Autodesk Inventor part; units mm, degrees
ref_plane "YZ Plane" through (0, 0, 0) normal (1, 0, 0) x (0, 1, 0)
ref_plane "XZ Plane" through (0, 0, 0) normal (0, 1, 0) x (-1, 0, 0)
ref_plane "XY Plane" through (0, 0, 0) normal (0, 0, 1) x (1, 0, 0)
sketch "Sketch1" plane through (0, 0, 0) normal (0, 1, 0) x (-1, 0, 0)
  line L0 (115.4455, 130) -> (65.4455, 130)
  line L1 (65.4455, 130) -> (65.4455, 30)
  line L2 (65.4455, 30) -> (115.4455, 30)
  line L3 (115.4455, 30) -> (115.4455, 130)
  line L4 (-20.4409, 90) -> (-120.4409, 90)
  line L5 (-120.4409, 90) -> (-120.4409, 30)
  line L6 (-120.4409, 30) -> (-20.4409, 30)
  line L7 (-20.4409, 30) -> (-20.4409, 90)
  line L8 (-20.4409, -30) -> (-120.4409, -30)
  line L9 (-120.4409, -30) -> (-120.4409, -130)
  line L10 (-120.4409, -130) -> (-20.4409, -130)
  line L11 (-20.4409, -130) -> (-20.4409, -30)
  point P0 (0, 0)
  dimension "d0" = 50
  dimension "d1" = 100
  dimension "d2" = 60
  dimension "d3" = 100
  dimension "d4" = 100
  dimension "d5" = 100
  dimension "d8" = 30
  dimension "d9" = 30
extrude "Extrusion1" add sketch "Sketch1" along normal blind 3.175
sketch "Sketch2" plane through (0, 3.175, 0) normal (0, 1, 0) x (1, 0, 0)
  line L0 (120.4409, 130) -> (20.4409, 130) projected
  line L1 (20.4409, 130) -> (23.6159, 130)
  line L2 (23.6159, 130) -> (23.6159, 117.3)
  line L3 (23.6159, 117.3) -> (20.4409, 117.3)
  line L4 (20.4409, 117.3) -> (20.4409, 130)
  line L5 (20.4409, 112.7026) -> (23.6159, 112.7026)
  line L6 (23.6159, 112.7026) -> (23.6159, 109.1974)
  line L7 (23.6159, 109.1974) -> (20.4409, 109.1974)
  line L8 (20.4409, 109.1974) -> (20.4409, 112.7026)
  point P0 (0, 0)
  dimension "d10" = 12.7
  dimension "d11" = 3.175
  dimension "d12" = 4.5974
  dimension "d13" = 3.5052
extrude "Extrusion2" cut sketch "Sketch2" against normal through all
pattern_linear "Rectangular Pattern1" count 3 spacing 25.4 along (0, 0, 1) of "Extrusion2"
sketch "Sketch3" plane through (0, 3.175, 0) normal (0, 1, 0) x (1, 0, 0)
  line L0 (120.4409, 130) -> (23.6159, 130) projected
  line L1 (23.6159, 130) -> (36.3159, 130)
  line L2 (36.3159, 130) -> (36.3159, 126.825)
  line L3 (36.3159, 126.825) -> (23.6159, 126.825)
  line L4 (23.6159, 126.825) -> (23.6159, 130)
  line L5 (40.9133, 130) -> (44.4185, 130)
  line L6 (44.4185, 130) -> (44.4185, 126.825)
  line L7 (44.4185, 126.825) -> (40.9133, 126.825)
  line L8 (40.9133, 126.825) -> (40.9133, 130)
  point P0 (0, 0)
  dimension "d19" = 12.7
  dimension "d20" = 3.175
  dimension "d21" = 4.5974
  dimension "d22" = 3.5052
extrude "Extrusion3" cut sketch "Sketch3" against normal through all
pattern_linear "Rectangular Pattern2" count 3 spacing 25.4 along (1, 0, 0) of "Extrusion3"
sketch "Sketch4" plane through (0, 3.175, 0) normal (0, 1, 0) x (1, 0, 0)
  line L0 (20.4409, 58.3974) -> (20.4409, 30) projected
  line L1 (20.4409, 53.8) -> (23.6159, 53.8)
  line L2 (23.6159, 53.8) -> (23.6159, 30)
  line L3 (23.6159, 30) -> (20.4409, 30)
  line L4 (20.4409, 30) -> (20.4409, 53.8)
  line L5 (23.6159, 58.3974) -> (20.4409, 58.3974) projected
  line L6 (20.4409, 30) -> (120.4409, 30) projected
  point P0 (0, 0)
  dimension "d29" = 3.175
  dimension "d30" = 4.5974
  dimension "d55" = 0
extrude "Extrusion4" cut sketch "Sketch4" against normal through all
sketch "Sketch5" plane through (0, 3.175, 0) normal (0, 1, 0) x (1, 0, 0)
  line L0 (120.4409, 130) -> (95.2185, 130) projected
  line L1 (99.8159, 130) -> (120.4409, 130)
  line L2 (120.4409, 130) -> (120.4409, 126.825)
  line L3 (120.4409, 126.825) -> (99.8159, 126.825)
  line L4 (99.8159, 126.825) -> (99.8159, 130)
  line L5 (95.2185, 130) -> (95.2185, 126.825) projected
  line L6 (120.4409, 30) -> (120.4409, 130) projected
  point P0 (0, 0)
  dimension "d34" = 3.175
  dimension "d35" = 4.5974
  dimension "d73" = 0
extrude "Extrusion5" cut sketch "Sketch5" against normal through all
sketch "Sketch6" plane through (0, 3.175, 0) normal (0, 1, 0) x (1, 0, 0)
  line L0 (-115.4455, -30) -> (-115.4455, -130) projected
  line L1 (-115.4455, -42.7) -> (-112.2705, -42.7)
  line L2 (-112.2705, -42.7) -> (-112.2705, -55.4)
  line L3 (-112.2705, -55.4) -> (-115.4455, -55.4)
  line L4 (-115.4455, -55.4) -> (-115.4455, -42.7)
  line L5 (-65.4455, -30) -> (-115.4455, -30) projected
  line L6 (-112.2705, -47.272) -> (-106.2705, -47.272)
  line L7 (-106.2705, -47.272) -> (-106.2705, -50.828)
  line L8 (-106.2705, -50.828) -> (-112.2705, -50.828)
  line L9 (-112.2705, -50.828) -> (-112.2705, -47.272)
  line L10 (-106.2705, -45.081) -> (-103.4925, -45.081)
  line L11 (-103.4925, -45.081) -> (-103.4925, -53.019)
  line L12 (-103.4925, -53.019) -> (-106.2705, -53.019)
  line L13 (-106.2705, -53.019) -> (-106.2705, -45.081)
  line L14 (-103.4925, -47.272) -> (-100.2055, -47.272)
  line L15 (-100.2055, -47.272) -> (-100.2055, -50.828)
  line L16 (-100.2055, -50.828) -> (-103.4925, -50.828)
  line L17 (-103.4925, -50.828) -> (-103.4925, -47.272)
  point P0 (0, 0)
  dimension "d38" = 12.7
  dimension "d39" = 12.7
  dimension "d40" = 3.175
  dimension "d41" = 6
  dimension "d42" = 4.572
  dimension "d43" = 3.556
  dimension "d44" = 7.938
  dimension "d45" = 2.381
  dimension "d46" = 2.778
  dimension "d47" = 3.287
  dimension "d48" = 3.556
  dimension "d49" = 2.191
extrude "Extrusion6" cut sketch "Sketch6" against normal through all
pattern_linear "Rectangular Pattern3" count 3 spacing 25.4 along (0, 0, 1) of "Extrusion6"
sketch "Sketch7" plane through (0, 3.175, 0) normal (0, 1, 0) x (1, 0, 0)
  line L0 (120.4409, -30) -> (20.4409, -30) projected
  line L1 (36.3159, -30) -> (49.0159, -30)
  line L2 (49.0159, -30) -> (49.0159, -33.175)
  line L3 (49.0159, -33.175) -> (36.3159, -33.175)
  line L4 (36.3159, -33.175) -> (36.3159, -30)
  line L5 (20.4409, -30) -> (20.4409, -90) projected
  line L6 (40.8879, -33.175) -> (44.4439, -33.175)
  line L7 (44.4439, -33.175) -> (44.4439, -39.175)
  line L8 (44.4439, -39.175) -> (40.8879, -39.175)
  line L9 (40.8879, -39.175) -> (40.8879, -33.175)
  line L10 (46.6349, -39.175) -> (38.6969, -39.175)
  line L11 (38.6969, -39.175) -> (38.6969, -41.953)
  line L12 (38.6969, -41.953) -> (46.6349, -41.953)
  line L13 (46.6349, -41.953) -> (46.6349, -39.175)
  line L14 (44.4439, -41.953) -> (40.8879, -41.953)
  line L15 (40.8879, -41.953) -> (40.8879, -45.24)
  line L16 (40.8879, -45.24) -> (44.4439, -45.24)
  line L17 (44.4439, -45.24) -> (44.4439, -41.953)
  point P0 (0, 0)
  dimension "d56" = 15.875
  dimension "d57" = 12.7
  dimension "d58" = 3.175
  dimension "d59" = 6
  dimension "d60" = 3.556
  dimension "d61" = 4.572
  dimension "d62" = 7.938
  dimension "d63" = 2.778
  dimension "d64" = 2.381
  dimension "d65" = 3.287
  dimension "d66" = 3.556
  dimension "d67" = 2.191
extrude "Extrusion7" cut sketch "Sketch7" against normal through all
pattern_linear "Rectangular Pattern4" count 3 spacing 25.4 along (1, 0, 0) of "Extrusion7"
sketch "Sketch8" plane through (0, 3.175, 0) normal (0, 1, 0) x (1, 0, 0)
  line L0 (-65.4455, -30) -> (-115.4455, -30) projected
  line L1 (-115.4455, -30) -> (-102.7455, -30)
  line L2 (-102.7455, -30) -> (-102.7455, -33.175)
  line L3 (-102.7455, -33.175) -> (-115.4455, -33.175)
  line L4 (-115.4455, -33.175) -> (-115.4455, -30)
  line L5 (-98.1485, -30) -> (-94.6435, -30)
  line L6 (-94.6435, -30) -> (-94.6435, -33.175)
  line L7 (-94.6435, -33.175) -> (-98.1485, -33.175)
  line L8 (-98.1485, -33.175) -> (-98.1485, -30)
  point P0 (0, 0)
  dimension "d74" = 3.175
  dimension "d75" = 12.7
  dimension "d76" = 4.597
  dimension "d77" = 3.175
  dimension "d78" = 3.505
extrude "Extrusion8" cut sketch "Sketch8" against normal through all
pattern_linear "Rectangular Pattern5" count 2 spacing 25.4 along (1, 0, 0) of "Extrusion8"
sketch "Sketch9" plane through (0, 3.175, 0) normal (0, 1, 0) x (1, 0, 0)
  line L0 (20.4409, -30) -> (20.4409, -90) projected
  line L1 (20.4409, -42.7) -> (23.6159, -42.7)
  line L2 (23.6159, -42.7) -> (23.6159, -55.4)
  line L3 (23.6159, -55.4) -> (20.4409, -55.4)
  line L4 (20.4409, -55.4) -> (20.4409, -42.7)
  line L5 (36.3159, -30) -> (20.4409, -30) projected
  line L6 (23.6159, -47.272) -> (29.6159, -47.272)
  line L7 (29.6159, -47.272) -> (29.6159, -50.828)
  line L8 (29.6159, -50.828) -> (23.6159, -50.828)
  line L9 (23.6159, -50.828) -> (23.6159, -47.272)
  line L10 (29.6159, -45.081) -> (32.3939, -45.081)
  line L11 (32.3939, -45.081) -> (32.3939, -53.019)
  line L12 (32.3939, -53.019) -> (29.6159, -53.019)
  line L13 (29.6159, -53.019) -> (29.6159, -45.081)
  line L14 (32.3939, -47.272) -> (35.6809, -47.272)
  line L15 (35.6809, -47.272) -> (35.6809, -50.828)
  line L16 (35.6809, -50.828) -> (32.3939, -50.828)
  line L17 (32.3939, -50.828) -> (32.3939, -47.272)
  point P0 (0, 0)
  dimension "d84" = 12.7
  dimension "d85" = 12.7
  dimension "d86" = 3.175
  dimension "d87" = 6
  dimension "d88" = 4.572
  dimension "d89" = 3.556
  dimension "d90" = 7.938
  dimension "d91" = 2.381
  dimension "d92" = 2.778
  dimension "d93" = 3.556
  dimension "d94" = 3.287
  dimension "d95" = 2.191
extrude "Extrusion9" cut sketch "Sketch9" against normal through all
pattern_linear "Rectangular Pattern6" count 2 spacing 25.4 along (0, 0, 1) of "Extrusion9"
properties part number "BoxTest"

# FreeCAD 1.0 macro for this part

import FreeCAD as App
import Part
import Sketcher

V = App.Vector
Q = App.Units.Quantity

doc = App.newDocument("Part")
body = doc.addObject("PartDesign::Body", "Body")
body.AllowCompound = True

sketch1 = body.newObject("Sketcher::SketchObject", "Sketch")
sketch1.AttachmentSupport = (doc.getObject("XZ_Plane"), [""])
sketch1.MapMode = "FlatFace"
sketch1.addGeometry(Part.LineSegment(V(-115, 30, 0), V(-115, 130, 0)), False)
sketch1.addGeometry(Part.LineSegment(V(-115, 130, 0), V(-65, 130, 0)), False)
sketch1.addGeometry(Part.LineSegment(V(-65, 130, 0), V(-65, 30, 0)), False)
sketch1.addGeometry(Part.LineSegment(V(-65, 30, 0), V(-115, 30, 0)), False)
sketch1.addGeometry(Part.LineSegment(V(20, 30, 0), V(20, 90, 0)), False)
sketch1.addGeometry(Part.LineSegment(V(20, 90, 0), V(120, 90, 0)), False)
sketch1.addGeometry(Part.LineSegment(V(120, 90, 0), V(120, 30, 0)), False)
sketch1.addGeometry(Part.LineSegment(V(120, 30, 0), V(20, 30, 0)), False)
sketch1.addGeometry(Part.LineSegment(V(20, -130, 0), V(20, -30, 0)), False)
sketch1.addGeometry(Part.LineSegment(V(20, -30, 0), V(120, -30, 0)), False)
sketch1.addGeometry(Part.LineSegment(V(120, -30, 0), V(120, -130, 0)), False)
sketch1.addGeometry(Part.LineSegment(V(120, -130, 0), V(20, -130, 0)), False)
sketch1.addConstraint(Sketcher.Constraint("Coincident", 0, 2, 1, 1))
sketch1.addConstraint(Sketcher.Constraint("Coincident", 1, 2, 2, 1))
sketch1.addConstraint(Sketcher.Constraint("Coincident", 2, 2, 3, 1))
sketch1.addConstraint(Sketcher.Constraint("Coincident", 3, 2, 0, 1))
sketch1.addConstraint(Sketcher.Constraint("Coincident", 4, 2, 5, 1))
sketch1.addConstraint(Sketcher.Constraint("Coincident", 5, 2, 6, 1))
sketch1.addConstraint(Sketcher.Constraint("Coincident", 6, 2, 7, 1))
sketch1.addConstraint(Sketcher.Constraint("Coincident", 7, 2, 4, 1))
sketch1.addConstraint(Sketcher.Constraint("Coincident", 8, 2, 9, 1))
sketch1.addConstraint(Sketcher.Constraint("Coincident", 9, 2, 10, 1))
sketch1.addConstraint(Sketcher.Constraint("Coincident", 10, 2, 11, 1))
sketch1.addConstraint(Sketcher.Constraint("Coincident", 11, 2, 8, 1))
sketch1.addConstraint(Sketcher.Constraint("Vertical", 0))
sketch1.addConstraint(Sketcher.Constraint("Horizontal", 1))
sketch1.addConstraint(Sketcher.Constraint("Vertical", 2))
sketch1.addConstraint(Sketcher.Constraint("Horizontal", 3))
sketch1.addConstraint(Sketcher.Constraint("Vertical", 4))
sketch1.addConstraint(Sketcher.Constraint("Horizontal", 5))
sketch1.addConstraint(Sketcher.Constraint("Vertical", 6))
sketch1.addConstraint(Sketcher.Constraint("Horizontal", 7))
sketch1.addConstraint(Sketcher.Constraint("Vertical", 8))
sketch1.addConstraint(Sketcher.Constraint("Horizontal", 9))
sketch1.addConstraint(Sketcher.Constraint("Vertical", 10))
sketch1.addConstraint(Sketcher.Constraint("Horizontal", 11))
sketch1.addConstraint(Sketcher.Constraint("Symmetric", 7, 2, 8, 2, -1))
sketch1.addConstraint(Sketcher.Constraint("Horizontal", 3, 2, 6, 2))
sketch1.addConstraint(Sketcher.Constraint("Vertical", 6, 2, 9, 2))
sketch1.addConstraint(Sketcher.Constraint("Equal", 11, 0))
sketch1.addConstraint(Sketcher.Constraint("Equal", 2, 8))
sketch1.addConstraint(Sketcher.Constraint("DistanceX", 5, 1, 5, 2, Q("3.937 in")))
sketch1.addConstraint(Sketcher.Constraint("DistanceX", 1, 1, 1, 2, Q("1.9685 in")))
sketch1.addConstraint(Sketcher.Constraint("DistanceY", 4, 1, 4, 2, Q("2.3622 in")))
sketch1.addConstraint(Sketcher.Constraint("DistanceY", -1, 1, 2, 2, Q("1.1811 in")))
sketch1.addConstraint(Sketcher.Constraint("DistanceX", 0, 2, -1, 1, Q("4.5451 in")))
sketch1.addConstraint(Sketcher.Constraint("DistanceX", -1, 1, 4, 2, Q("20.441 mm")))
pad1 = body.newObject("PartDesign::Pad", "Pad")
pad1.Profile = sketch1
pad1.Length = Q("0.125 in")
pad1.Reversed = True

sketch2 = body.newObject("Sketcher::SketchObject", "Sketch001")
sketch2.AttachmentSupport = (doc.getObject("XZ_Plane"), [""])
sketch2.MapMode = "FlatFace"
sketch2.AttachmentOffset = App.Placement(V(0, 0, -0.125 * 25.4), App.Rotation())
sketch2.addGeometry(Part.LineSegment(V(23.6, -117.3, 0), V(23.6, -130, 0)), False)
sketch2.addGeometry(Part.LineSegment(V(23.6, -130, 0), V(20.4, -130, 0)), False)
sketch2.addGeometry(Part.LineSegment(V(20.4, -130, 0), V(20.4, -117.3, 0)), False)
sketch2.addGeometry(Part.LineSegment(V(20.4, -117.3, 0), V(23.6, -117.3, 0)), False)
sketch2.addGeometry(Part.LineSegment(V(23.6, -112.7, 0), V(20.4, -112.7, 0)), False)
sketch2.addGeometry(Part.LineSegment(V(20.4, -112.7, 0), V(20.4, -109.2, 0)), False)
sketch2.addGeometry(Part.LineSegment(V(20.4, -109.2, 0), V(23.6, -109.2, 0)), False)
sketch2.addGeometry(Part.LineSegment(V(23.6, -109.2, 0), V(23.6, -112.7, 0)), False)
sketch2.addConstraint(Sketcher.Constraint("Coincident", 0, 2, 1, 1))
sketch2.addConstraint(Sketcher.Constraint("Coincident", 1, 2, 2, 1))
sketch2.addConstraint(Sketcher.Constraint("Coincident", 2, 2, 3, 1))
sketch2.addConstraint(Sketcher.Constraint("Coincident", 3, 2, 0, 1))
sketch2.addConstraint(Sketcher.Constraint("Coincident", 4, 2, 5, 1))
sketch2.addConstraint(Sketcher.Constraint("Coincident", 5, 2, 6, 1))
sketch2.addConstraint(Sketcher.Constraint("Coincident", 6, 2, 7, 1))
sketch2.addConstraint(Sketcher.Constraint("Coincident", 7, 2, 4, 1))
sketch2.addConstraint(Sketcher.Constraint("Vertical", 0))
sketch2.addConstraint(Sketcher.Constraint("Horizontal", 1))
sketch2.addConstraint(Sketcher.Constraint("Vertical", 2))
sketch2.addConstraint(Sketcher.Constraint("Horizontal", 3))
sketch2.addConstraint(Sketcher.Constraint("Horizontal", 4))
sketch2.addConstraint(Sketcher.Constraint("Vertical", 5))
sketch2.addConstraint(Sketcher.Constraint("Horizontal", 6))
sketch2.addConstraint(Sketcher.Constraint("Vertical", 7))
sketch2.addConstraint(Sketcher.Constraint("Vertical", 2, 2, 4, 2))
sketch2.addConstraint(Sketcher.Constraint("Vertical", 3, 2, 6, 2))
sketch2.addConstraint(Sketcher.Constraint("DistanceY", 0, 2, 0, 1, Q("0.5 in")))
sketch2.addConstraint(Sketcher.Constraint("DistanceX", 1, 2, 1, 1, Q("0.125 in")))
sketch2.addConstraint(Sketcher.Constraint("DistanceY", 5, 1, 5, 2, Q("0.138 in")))
sketch2.addConstraint(Sketcher.Constraint("DistanceY", 2, 2, 4, 2, Q("0.181 in")))
sketch2.addConstraint(Sketcher.Constraint("DistanceY", 0, 2, -1, 1, Q("5.1181 in")))
sketch2.addConstraint(Sketcher.Constraint("DistanceX", -1, 1, 0, 2, Q("23.616 mm")))
pocket1 = body.newObject("PartDesign::Pocket", "Pocket")
pocket1.Profile = sketch2
pocket1.Type = "ThroughAll"
pocket1.Reversed = True
doc.recompute()

linearpattern = body.newObject("PartDesign::LinearPattern", "LinearPattern")
linearpattern.Originals = [pocket1]
linearpattern.Direction = (doc.getObject("Z_Axis"), [""])
linearpattern.Mode = "offset"
linearpattern.Offset = Q("1 in")
linearpattern.Occurrences = 3
body.Tip = linearpattern

sketch3 = body.newObject("Sketcher::SketchObject", "Sketch002")
sketch3.AttachmentSupport = (doc.getObject("XZ_Plane"), [""])
sketch3.MapMode = "FlatFace"
sketch3.AttachmentOffset = App.Placement(V(0, 0, -0.125 * 25.4), App.Rotation())
sketch3.addGeometry(Part.LineSegment(V(44.4, -126.8, 0), V(44.4, -130, 0)), False)
sketch3.addGeometry(Part.LineSegment(V(44.4, -130, 0), V(40.9, -130, 0)), False)
sketch3.addGeometry(Part.LineSegment(V(40.9, -130, 0), V(40.9, -126.8, 0)), False)
sketch3.addGeometry(Part.LineSegment(V(40.9, -126.8, 0), V(44.4, -126.8, 0)), False)
sketch3.addGeometry(Part.LineSegment(V(36.3, -126.8, 0), V(36.3, -130, 0)), False)
sketch3.addGeometry(Part.LineSegment(V(36.3, -130, 0), V(23.6, -130, 0)), False)
sketch3.addGeometry(Part.LineSegment(V(23.6, -130, 0), V(23.6, -126.8, 0)), False)
sketch3.addGeometry(Part.LineSegment(V(23.6, -126.8, 0), V(36.3, -126.8, 0)), False)
sketch3.addConstraint(Sketcher.Constraint("Coincident", 0, 2, 1, 1))
sketch3.addConstraint(Sketcher.Constraint("Coincident", 1, 2, 2, 1))
sketch3.addConstraint(Sketcher.Constraint("Coincident", 2, 2, 3, 1))
sketch3.addConstraint(Sketcher.Constraint("Coincident", 3, 2, 0, 1))
sketch3.addConstraint(Sketcher.Constraint("Coincident", 4, 2, 5, 1))
sketch3.addConstraint(Sketcher.Constraint("Coincident", 5, 2, 6, 1))
sketch3.addConstraint(Sketcher.Constraint("Coincident", 6, 2, 7, 1))
sketch3.addConstraint(Sketcher.Constraint("Coincident", 7, 2, 4, 1))
sketch3.addConstraint(Sketcher.Constraint("Vertical", 0))
sketch3.addConstraint(Sketcher.Constraint("Horizontal", 1))
sketch3.addConstraint(Sketcher.Constraint("Vertical", 2))
sketch3.addConstraint(Sketcher.Constraint("Horizontal", 3))
sketch3.addConstraint(Sketcher.Constraint("Vertical", 4))
sketch3.addConstraint(Sketcher.Constraint("Horizontal", 5))
sketch3.addConstraint(Sketcher.Constraint("Vertical", 6))
sketch3.addConstraint(Sketcher.Constraint("Horizontal", 7))
sketch3.addConstraint(Sketcher.Constraint("Horizontal", 1, 2, 4, 2))
sketch3.addConstraint(Sketcher.Constraint("Horizontal", 3, 2, 6, 2))
sketch3.addConstraint(Sketcher.Constraint("DistanceX", 5, 2, 5, 1, Q("0.5 in")))
sketch3.addConstraint(Sketcher.Constraint("DistanceX", 1, 2, 1, 1, Q("0.138 in")))
sketch3.addConstraint(Sketcher.Constraint("DistanceY", 0, 2, 0, 1, Q("0.125 in")))
sketch3.addConstraint(Sketcher.Constraint("DistanceX", 4, 2, 1, 2, Q("0.181 in")))
sketch3.addConstraint(Sketcher.Constraint("DistanceY", 0, 2, -1, 1, Q("5.1181 in")))
sketch3.addConstraint(Sketcher.Constraint("DistanceX", -1, 1, 0, 2, Q("44.4185 mm")))
pocket2 = body.newObject("PartDesign::Pocket", "Pocket001")
pocket2.Profile = sketch3
pocket2.Type = "ThroughAll"
pocket2.Reversed = True
doc.recompute()

linearpattern2 = body.newObject("PartDesign::LinearPattern", "LinearPattern001")
linearpattern2.Originals = [pocket2]
linearpattern2.Direction = (doc.getObject("X_Axis"), [""])
linearpattern2.Mode = "offset"
linearpattern2.Offset = Q("1 in")
linearpattern2.Occurrences = 3
body.Tip = linearpattern2

sketch4 = body.newObject("Sketcher::SketchObject", "Sketch003")
sketch4.AttachmentSupport = (doc.getObject("XZ_Plane"), [""])
sketch4.MapMode = "FlatFace"
sketch4.AttachmentOffset = App.Placement(V(0, 0, -0.125 * 25.4), App.Rotation())
sketch4.addGeometry(Part.LineSegment(V(23.6, -53.8, 0), V(20.4, -53.8, 0)), False)
sketch4.addGeometry(Part.LineSegment(V(20.4, -53.8, 0), V(20.4, -30, 0)), False)
sketch4.addGeometry(Part.LineSegment(V(20.4, -30, 0), V(23.6, -30, 0)), False)
sketch4.addGeometry(Part.LineSegment(V(23.6, -30, 0), V(23.6, -53.8, 0)), False)
sketch4.addConstraint(Sketcher.Constraint("Coincident", 0, 2, 1, 1))
sketch4.addConstraint(Sketcher.Constraint("Coincident", 1, 2, 2, 1))
sketch4.addConstraint(Sketcher.Constraint("Coincident", 2, 2, 3, 1))
sketch4.addConstraint(Sketcher.Constraint("Coincident", 3, 2, 0, 1))
sketch4.addConstraint(Sketcher.Constraint("Horizontal", 0))
sketch4.addConstraint(Sketcher.Constraint("Vertical", 1))
sketch4.addConstraint(Sketcher.Constraint("Horizontal", 2))
sketch4.addConstraint(Sketcher.Constraint("Vertical", 3))
sketch4.addConstraint(Sketcher.Constraint("DistanceX", 0, 2, 0, 1, Q("0.125 in")))
sketch4.addConstraint(Sketcher.Constraint("DistanceY", 1, 1, 1, 2, Q("0.937 in")))
sketch4.addConstraint(Sketcher.Constraint("DistanceY", 0, 2, -1, 1, Q("2.1181 in")))
sketch4.addConstraint(Sketcher.Constraint("DistanceX", -1, 1, 0, 2, Q("20.441 mm")))
pocket3 = body.newObject("PartDesign::Pocket", "Pocket002")
pocket3.Profile = sketch4
pocket3.Type = "ThroughAll"
pocket3.Reversed = True

sketch5 = body.newObject("Sketcher::SketchObject", "Sketch004")
sketch5.AttachmentSupport = (doc.getObject("XZ_Plane"), [""])
sketch5.MapMode = "FlatFace"
sketch5.AttachmentOffset = App.Placement(V(0, 0, -0.125 * 25.4), App.Rotation())
sketch5.addGeometry(Part.LineSegment(V(120.4, -126.8, 0), V(120.4, -130, 0)), False)
sketch5.addGeometry(Part.LineSegment(V(120.4, -130, 0), V(99.8, -130, 0)), False)
sketch5.addGeometry(Part.LineSegment(V(99.8, -130, 0), V(99.8, -126.8, 0)), False)
sketch5.addGeometry(Part.LineSegment(V(99.8, -126.8, 0), V(120.4, -126.8, 0)), False)
sketch5.addConstraint(Sketcher.Constraint("Coincident", 0, 2, 1, 1))
sketch5.addConstraint(Sketcher.Constraint("Coincident", 1, 2, 2, 1))
sketch5.addConstraint(Sketcher.Constraint("Coincident", 2, 2, 3, 1))
sketch5.addConstraint(Sketcher.Constraint("Coincident", 3, 2, 0, 1))
sketch5.addConstraint(Sketcher.Constraint("Vertical", 0))
sketch5.addConstraint(Sketcher.Constraint("Horizontal", 1))
sketch5.addConstraint(Sketcher.Constraint("Vertical", 2))
sketch5.addConstraint(Sketcher.Constraint("Horizontal", 3))
sketch5.addConstraint(Sketcher.Constraint("DistanceY", 0, 2, 0, 1, Q("0.125 in")))
sketch5.addConstraint(Sketcher.Constraint("DistanceX", 1, 2, 1, 1, Q("0.812 in")))
sketch5.addConstraint(Sketcher.Constraint("DistanceY", 0, 2, -1, 1, Q("5.1181 in")))
sketch5.addConstraint(Sketcher.Constraint("DistanceX", -1, 1, 0, 2, Q("120.441 mm")))
pocket4 = body.newObject("PartDesign::Pocket", "Pocket003")
pocket4.Profile = sketch5
pocket4.Type = "ThroughAll"
pocket4.Reversed = True

sketch6 = body.newObject("Sketcher::SketchObject", "Sketch005")
sketch6.AttachmentSupport = (doc.getObject("XZ_Plane"), [""])
sketch6.MapMode = "FlatFace"
sketch6.AttachmentOffset = App.Placement(V(0, 0, -0.125 * 25.4), App.Rotation())
sketch6.addGeometry(Part.LineSegment(V(-112.3, 42.7, 0), V(-115.4, 42.7, 0)), False)
sketch6.addGeometry(Part.LineSegment(V(-115.4, 42.7, 0), V(-115.4, 55.4, 0)), False)
sketch6.addGeometry(Part.LineSegment(V(-115.4, 55.4, 0), V(-112.3, 55.4, 0)), False)
sketch6.addGeometry(Part.LineSegment(V(-112.3, 55.4, 0), V(-112.3, 50.8, 0)), False)
sketch6.addGeometry(Part.LineSegment(V(-112.3, 50.8, 0), V(-106.3, 50.8, 0)), False)
sketch6.addGeometry(Part.LineSegment(V(-106.3, 50.8, 0), V(-106.3, 53, 0)), False)
sketch6.addGeometry(Part.LineSegment(V(-106.3, 53, 0), V(-103.5, 53, 0)), False)
sketch6.addGeometry(Part.LineSegment(V(-103.5, 53, 0), V(-103.5, 50.8, 0)), False)
sketch6.addGeometry(Part.LineSegment(V(-103.5, 50.8, 0), V(-100.2, 50.8, 0)), False)
sketch6.addGeometry(Part.LineSegment(V(-100.2, 50.8, 0), V(-100.2, 47.3, 0)), False)
sketch6.addGeometry(Part.LineSegment(V(-100.2, 47.3, 0), V(-103.5, 47.3, 0)), False)
sketch6.addGeometry(Part.LineSegment(V(-103.5, 47.3, 0), V(-103.5, 45.1, 0)), False)
sketch6.addGeometry(Part.LineSegment(V(-103.5, 45.1, 0), V(-106.3, 45.1, 0)), False)
sketch6.addGeometry(Part.LineSegment(V(-106.3, 45.1, 0), V(-106.3, 47.3, 0)), False)
sketch6.addGeometry(Part.LineSegment(V(-106.3, 47.3, 0), V(-112.3, 47.3, 0)), False)
sketch6.addGeometry(Part.LineSegment(V(-112.3, 47.3, 0), V(-112.3, 42.7, 0)), False)
sketch6.addConstraint(Sketcher.Constraint("Coincident", 0, 2, 1, 1))
sketch6.addConstraint(Sketcher.Constraint("Coincident", 1, 2, 2, 1))
sketch6.addConstraint(Sketcher.Constraint("Coincident", 2, 2, 3, 1))
sketch6.addConstraint(Sketcher.Constraint("Coincident", 3, 2, 4, 1))
sketch6.addConstraint(Sketcher.Constraint("Coincident", 4, 2, 5, 1))
sketch6.addConstraint(Sketcher.Constraint("Coincident", 5, 2, 6, 1))
sketch6.addConstraint(Sketcher.Constraint("Coincident", 6, 2, 7, 1))
sketch6.addConstraint(Sketcher.Constraint("Coincident", 7, 2, 8, 1))
sketch6.addConstraint(Sketcher.Constraint("Coincident", 8, 2, 9, 1))
sketch6.addConstraint(Sketcher.Constraint("Coincident", 9, 2, 10, 1))
sketch6.addConstraint(Sketcher.Constraint("Coincident", 10, 2, 11, 1))
sketch6.addConstraint(Sketcher.Constraint("Coincident", 11, 2, 12, 1))
sketch6.addConstraint(Sketcher.Constraint("Coincident", 12, 2, 13, 1))
sketch6.addConstraint(Sketcher.Constraint("Coincident", 13, 2, 14, 1))
sketch6.addConstraint(Sketcher.Constraint("Coincident", 14, 2, 15, 1))
sketch6.addConstraint(Sketcher.Constraint("Coincident", 15, 2, 0, 1))
sketch6.addConstraint(Sketcher.Constraint("Horizontal", 0))
sketch6.addConstraint(Sketcher.Constraint("Vertical", 1))
sketch6.addConstraint(Sketcher.Constraint("Horizontal", 2))
sketch6.addConstraint(Sketcher.Constraint("Vertical", 3))
sketch6.addConstraint(Sketcher.Constraint("Horizontal", 4))
sketch6.addConstraint(Sketcher.Constraint("Vertical", 5))
sketch6.addConstraint(Sketcher.Constraint("Horizontal", 6))
sketch6.addConstraint(Sketcher.Constraint("Vertical", 7))
sketch6.addConstraint(Sketcher.Constraint("Horizontal", 8))
sketch6.addConstraint(Sketcher.Constraint("Vertical", 9))
sketch6.addConstraint(Sketcher.Constraint("Horizontal", 10))
sketch6.addConstraint(Sketcher.Constraint("Vertical", 11))
sketch6.addConstraint(Sketcher.Constraint("Horizontal", 12))
sketch6.addConstraint(Sketcher.Constraint("Vertical", 13))
sketch6.addConstraint(Sketcher.Constraint("Horizontal", 14))
sketch6.addConstraint(Sketcher.Constraint("Vertical", 15))
sketch6.addConstraint(Sketcher.Constraint("Horizontal", 4, 2, 7, 2))
sketch6.addConstraint(Sketcher.Constraint("Horizontal", 10, 2, 13, 2))
sketch6.addConstraint(Sketcher.Constraint("Vertical", 7, 2, 10, 2))
sketch6.addConstraint(Sketcher.Constraint("Vertical", 5, 2, 12, 2))
sketch6.addConstraint(Sketcher.Constraint("Vertical", 3, 2, 14, 2))
sketch6.addConstraint(Sketcher.Constraint("Equal", 7, 11))
sketch6.addConstraint(Sketcher.Constraint("Equal", 3, 15))
sketch6.addConstraint(Sketcher.Constraint("DistanceY", 1, 1, 1, 2, Q("0.5 in")))
sketch6.addConstraint(Sketcher.Constraint("DistanceY", 3, 2, 3, 1, Q("0.18 in")))
sketch6.addConstraint(Sketcher.Constraint("DistanceX", 0, 2, 0, 1, Q("0.125 in")))
sketch6.addConstraint(Sketcher.Constraint("DistanceX", 6, 1, 6, 2, Q("0.1093701 in")))
sketch6.addConstraint(Sketcher.Constraint("DistanceX", 8, 1, 8, 2, Q("0.1294 in")))
sketch6.addConstraint(Sketcher.Constraint("DistanceX", 4, 1, 4, 2, Q("6 mm")))
sketch6.addConstraint(Sketcher.Constraint("DistanceY", 5, 1, 5, 2, Q("2.191 mm")))
sketch6.addConstraint(Sketcher.Constraint("DistanceX", 0, 2, -1, 1, Q("4.5451 in")))
sketch6.addConstraint(Sketcher.Constraint("DistanceY", -1, 1, 0, 2, Q("1.6811 in")))
pocket5 = body.newObject("PartDesign::Pocket", "Pocket004")
pocket5.Profile = sketch6
pocket5.Type = "ThroughAll"
pocket5.Reversed = True
doc.recompute()

linearpattern3 = body.newObject("PartDesign::LinearPattern", "LinearPattern002")
linearpattern3.Originals = [pocket5]
linearpattern3.Direction = (doc.getObject("Z_Axis"), [""])
linearpattern3.Mode = "offset"
linearpattern3.Offset = Q("1 in")
linearpattern3.Occurrences = 3
body.Tip = linearpattern3

sketch7 = body.newObject("Sketcher::SketchObject", "Sketch006")
sketch7.AttachmentSupport = (doc.getObject("XZ_Plane"), [""])
sketch7.MapMode = "FlatFace"
sketch7.AttachmentOffset = App.Placement(V(0, 0, -0.125 * 25.4), App.Rotation())
sketch7.addGeometry(Part.LineSegment(V(49, 33.2, 0), V(49, 30, 0)), False)
sketch7.addGeometry(Part.LineSegment(V(49, 30, 0), V(36.3, 30, 0)), False)
sketch7.addGeometry(Part.LineSegment(V(36.3, 30, 0), V(36.3, 33.2, 0)), False)
sketch7.addGeometry(Part.LineSegment(V(36.3, 33.2, 0), V(40.9, 33.2, 0)), False)
sketch7.addGeometry(Part.LineSegment(V(40.9, 33.2, 0), V(40.9, 39.2, 0)), False)
sketch7.addGeometry(Part.LineSegment(V(40.9, 39.2, 0), V(38.7, 39.2, 0)), False)
sketch7.addGeometry(Part.LineSegment(V(38.7, 39.2, 0), V(38.7, 42, 0)), False)
sketch7.addGeometry(Part.LineSegment(V(38.7, 42, 0), V(40.9, 42, 0)), False)
sketch7.addGeometry(Part.LineSegment(V(40.9, 42, 0), V(40.9, 45.2, 0)), False)
sketch7.addGeometry(Part.LineSegment(V(40.9, 45.2, 0), V(44.4, 45.2, 0)), False)
sketch7.addGeometry(Part.LineSegment(V(44.4, 45.2, 0), V(44.4, 42, 0)), False)
sketch7.addGeometry(Part.LineSegment(V(44.4, 42, 0), V(46.6, 42, 0)), False)
sketch7.addGeometry(Part.LineSegment(V(46.6, 42, 0), V(46.6, 39.2, 0)), False)
sketch7.addGeometry(Part.LineSegment(V(46.6, 39.2, 0), V(44.4, 39.2, 0)), False)
sketch7.addGeometry(Part.LineSegment(V(44.4, 39.2, 0), V(44.4, 33.2, 0)), False)
sketch7.addGeometry(Part.LineSegment(V(44.4, 33.2, 0), V(49, 33.2, 0)), False)
sketch7.addConstraint(Sketcher.Constraint("Coincident", 0, 2, 1, 1))
sketch7.addConstraint(Sketcher.Constraint("Coincident", 1, 2, 2, 1))
sketch7.addConstraint(Sketcher.Constraint("Coincident", 2, 2, 3, 1))
sketch7.addConstraint(Sketcher.Constraint("Coincident", 3, 2, 4, 1))
sketch7.addConstraint(Sketcher.Constraint("Coincident", 4, 2, 5, 1))
sketch7.addConstraint(Sketcher.Constraint("Coincident", 5, 2, 6, 1))
sketch7.addConstraint(Sketcher.Constraint("Coincident", 6, 2, 7, 1))
sketch7.addConstraint(Sketcher.Constraint("Coincident", 7, 2, 8, 1))
sketch7.addConstraint(Sketcher.Constraint("Coincident", 8, 2, 9, 1))
sketch7.addConstraint(Sketcher.Constraint("Coincident", 9, 2, 10, 1))
sketch7.addConstraint(Sketcher.Constraint("Coincident", 10, 2, 11, 1))
sketch7.addConstraint(Sketcher.Constraint("Coincident", 11, 2, 12, 1))
sketch7.addConstraint(Sketcher.Constraint("Coincident", 12, 2, 13, 1))
sketch7.addConstraint(Sketcher.Constraint("Coincident", 13, 2, 14, 1))
sketch7.addConstraint(Sketcher.Constraint("Coincident", 14, 2, 15, 1))
sketch7.addConstraint(Sketcher.Constraint("Coincident", 15, 2, 0, 1))
sketch7.addConstraint(Sketcher.Constraint("Vertical", 0))
sketch7.addConstraint(Sketcher.Constraint("Horizontal", 1))
sketch7.addConstraint(Sketcher.Constraint("Vertical", 2))
sketch7.addConstraint(Sketcher.Constraint("Horizontal", 3))
sketch7.addConstraint(Sketcher.Constraint("Vertical", 4))
sketch7.addConstraint(Sketcher.Constraint("Horizontal", 5))
sketch7.addConstraint(Sketcher.Constraint("Vertical", 6))
sketch7.addConstraint(Sketcher.Constraint("Horizontal", 7))
sketch7.addConstraint(Sketcher.Constraint("Vertical", 8))
sketch7.addConstraint(Sketcher.Constraint("Horizontal", 9))
sketch7.addConstraint(Sketcher.Constraint("Vertical", 10))
sketch7.addConstraint(Sketcher.Constraint("Horizontal", 11))
sketch7.addConstraint(Sketcher.Constraint("Vertical", 12))
sketch7.addConstraint(Sketcher.Constraint("Horizontal", 13))
sketch7.addConstraint(Sketcher.Constraint("Vertical", 14))
sketch7.addConstraint(Sketcher.Constraint("Horizontal", 15))
sketch7.addConstraint(Sketcher.Constraint("Horizontal", 7, 2, 10, 2))
sketch7.addConstraint(Sketcher.Constraint("Horizontal", 5, 2, 12, 2))
sketch7.addConstraint(Sketcher.Constraint("Horizontal", 3, 2, 14, 2))
sketch7.addConstraint(Sketcher.Constraint("Vertical", 4, 2, 7, 2))
sketch7.addConstraint(Sketcher.Constraint("Vertical", 10, 2, 13, 2))
sketch7.addConstraint(Sketcher.Constraint("Equal", 7, 11))
sketch7.addConstraint(Sketcher.Constraint("Equal", 3, 15))
sketch7.addConstraint(Sketcher.Constraint("DistanceX", 1, 2, 1, 1, Q("0.5 in")))
sketch7.addConstraint(Sketcher.Constraint("DistanceX", 3, 1, 3, 2, Q("0.18 in")))
sketch7.addConstraint(Sketcher.Constraint("DistanceY", 0, 2, 0, 1, Q("0.125 in")))
sketch7.addConstraint(Sketcher.Constraint("DistanceY", 6, 1, 6, 2, Q("0.1093701 in")))
sketch7.addConstraint(Sketcher.Constraint("DistanceY", 8, 1, 8, 2, Q("0.1294 in")))
sketch7.addConstraint(Sketcher.Constraint("DistanceX", 5, 2, 5, 1, Q("2.191 mm")))
sketch7.addConstraint(Sketcher.Constraint("DistanceY", 4, 1, 4, 2, Q("6 mm")))
sketch7.addConstraint(Sketcher.Constraint("DistanceY", -1, 1, 0, 2, Q("1.1811 in")))
sketch7.addConstraint(Sketcher.Constraint("DistanceX", -1, 1, 5, 2, Q("1.5235 in")))
pocket6 = body.newObject("PartDesign::Pocket", "Pocket005")
pocket6.Profile = sketch7
pocket6.Type = "ThroughAll"
pocket6.Reversed = True
doc.recompute()

linearpattern4 = body.newObject("PartDesign::LinearPattern", "LinearPattern003")
linearpattern4.Originals = [pocket6]
linearpattern4.Direction = (doc.getObject("X_Axis"), [""])
linearpattern4.Mode = "offset"
linearpattern4.Offset = Q("1 in")
linearpattern4.Occurrences = 3
body.Tip = linearpattern4

sketch8 = body.newObject("Sketcher::SketchObject", "Sketch007")
sketch8.AttachmentSupport = (doc.getObject("XZ_Plane"), [""])
sketch8.MapMode = "FlatFace"
sketch8.AttachmentOffset = App.Placement(V(0, 0, -0.125 * 25.4), App.Rotation())
sketch8.addGeometry(Part.LineSegment(V(-94.6, 33.2, 0), V(-94.6, 30, 0)), False)
sketch8.addGeometry(Part.LineSegment(V(-94.6, 30, 0), V(-98.1, 30, 0)), False)
sketch8.addGeometry(Part.LineSegment(V(-98.1, 30, 0), V(-98.1, 33.2, 0)), False)
sketch8.addGeometry(Part.LineSegment(V(-98.1, 33.2, 0), V(-94.6, 33.2, 0)), False)
sketch8.addGeometry(Part.LineSegment(V(-102.7, 33.2, 0), V(-102.7, 30, 0)), False)
sketch8.addGeometry(Part.LineSegment(V(-102.7, 30, 0), V(-115.4, 30, 0)), False)
sketch8.addGeometry(Part.LineSegment(V(-115.4, 30, 0), V(-115.4, 33.2, 0)), False)
sketch8.addGeometry(Part.LineSegment(V(-115.4, 33.2, 0), V(-102.7, 33.2, 0)), False)
sketch8.addConstraint(Sketcher.Constraint("Coincident", 0, 2, 1, 1))
sketch8.addConstraint(Sketcher.Constraint("Coincident", 1, 2, 2, 1))
sketch8.addConstraint(Sketcher.Constraint("Coincident", 2, 2, 3, 1))
sketch8.addConstraint(Sketcher.Constraint("Coincident", 3, 2, 0, 1))
sketch8.addConstraint(Sketcher.Constraint("Coincident", 4, 2, 5, 1))
sketch8.addConstraint(Sketcher.Constraint("Coincident", 5, 2, 6, 1))
sketch8.addConstraint(Sketcher.Constraint("Coincident", 6, 2, 7, 1))
sketch8.addConstraint(Sketcher.Constraint("Coincident", 7, 2, 4, 1))
sketch8.addConstraint(Sketcher.Constraint("Vertical", 0))
sketch8.addConstraint(Sketcher.Constraint("Horizontal", 1))
sketch8.addConstraint(Sketcher.Constraint("Vertical", 2))
sketch8.addConstraint(Sketcher.Constraint("Horizontal", 3))
sketch8.addConstraint(Sketcher.Constraint("Vertical", 4))
sketch8.addConstraint(Sketcher.Constraint("Horizontal", 5))
sketch8.addConstraint(Sketcher.Constraint("Vertical", 6))
sketch8.addConstraint(Sketcher.Constraint("Horizontal", 7))
sketch8.addConstraint(Sketcher.Constraint("Horizontal", 1, 2, 4, 2))
sketch8.addConstraint(Sketcher.Constraint("Horizontal", 3, 2, 6, 2))
sketch8.addConstraint(Sketcher.Constraint("DistanceX", 5, 2, 5, 1, Q("0.5 in")))
sketch8.addConstraint(Sketcher.Constraint("DistanceX", 1, 2, 1, 1, Q("0.138 in")))
sketch8.addConstraint(Sketcher.Constraint("DistanceY", 0, 2, 0, 1, Q("0.125 in")))
sketch8.addConstraint(Sketcher.Constraint("DistanceX", 4, 2, 1, 2, Q("4.597 mm")))
sketch8.addConstraint(Sketcher.Constraint("DistanceY", -1, 1, 0, 2, Q("1.1811 in")))
sketch8.addConstraint(Sketcher.Constraint("DistanceX", 4, 2, -1, 1, Q("4.0451 in")))
pocket7 = body.newObject("PartDesign::Pocket", "Pocket006")
pocket7.Profile = sketch8
pocket7.Type = "ThroughAll"
pocket7.Reversed = True
doc.recompute()

linearpattern5 = body.newObject("PartDesign::LinearPattern", "LinearPattern004")
linearpattern5.Originals = [pocket7]
linearpattern5.Direction = (doc.getObject("X_Axis"), [""])
linearpattern5.Mode = "offset"
linearpattern5.Offset = Q("1 in")
linearpattern5.Occurrences = 2
body.Tip = linearpattern5

sketch9 = body.newObject("Sketcher::SketchObject", "Sketch008")
sketch9.AttachmentSupport = (doc.getObject("XZ_Plane"), [""])
sketch9.MapMode = "FlatFace"
sketch9.AttachmentOffset = App.Placement(V(0, 0, -0.125 * 25.4), App.Rotation())
sketch9.addGeometry(Part.LineSegment(V(23.6, 42.7, 0), V(20.4, 42.7, 0)), False)
sketch9.addGeometry(Part.LineSegment(V(20.4, 42.7, 0), V(20.4, 55.4, 0)), False)
sketch9.addGeometry(Part.LineSegment(V(20.4, 55.4, 0), V(23.6, 55.4, 0)), False)
sketch9.addGeometry(Part.LineSegment(V(23.6, 55.4, 0), V(23.6, 50.8, 0)), False)
sketch9.addGeometry(Part.LineSegment(V(23.6, 50.8, 0), V(29.6, 50.8, 0)), False)
sketch9.addGeometry(Part.LineSegment(V(29.6, 50.8, 0), V(29.6, 53, 0)), False)
sketch9.addGeometry(Part.LineSegment(V(29.6, 53, 0), V(32.4, 53, 0)), False)
sketch9.addGeometry(Part.LineSegment(V(32.4, 53, 0), V(32.4, 50.8, 0)), False)
sketch9.addGeometry(Part.LineSegment(V(32.4, 50.8, 0), V(35.7, 50.8, 0)), False)
sketch9.addGeometry(Part.LineSegment(V(35.7, 50.8, 0), V(35.7, 47.3, 0)), False)
sketch9.addGeometry(Part.LineSegment(V(35.7, 47.3, 0), V(32.4, 47.3, 0)), False)
sketch9.addGeometry(Part.LineSegment(V(32.4, 47.3, 0), V(32.4, 45.1, 0)), False)
sketch9.addGeometry(Part.LineSegment(V(32.4, 45.1, 0), V(29.6, 45.1, 0)), False)
sketch9.addGeometry(Part.LineSegment(V(29.6, 45.1, 0), V(29.6, 47.3, 0)), False)
sketch9.addGeometry(Part.LineSegment(V(29.6, 47.3, 0), V(23.6, 47.3, 0)), False)
sketch9.addGeometry(Part.LineSegment(V(23.6, 47.3, 0), V(23.6, 42.7, 0)), False)
sketch9.addConstraint(Sketcher.Constraint("Coincident", 0, 2, 1, 1))
sketch9.addConstraint(Sketcher.Constraint("Coincident", 1, 2, 2, 1))
sketch9.addConstraint(Sketcher.Constraint("Coincident", 2, 2, 3, 1))
sketch9.addConstraint(Sketcher.Constraint("Coincident", 3, 2, 4, 1))
sketch9.addConstraint(Sketcher.Constraint("Coincident", 4, 2, 5, 1))
sketch9.addConstraint(Sketcher.Constraint("Coincident", 5, 2, 6, 1))
sketch9.addConstraint(Sketcher.Constraint("Coincident", 6, 2, 7, 1))
sketch9.addConstraint(Sketcher.Constraint("Coincident", 7, 2, 8, 1))
sketch9.addConstraint(Sketcher.Constraint("Coincident", 8, 2, 9, 1))
sketch9.addConstraint(Sketcher.Constraint("Coincident", 9, 2, 10, 1))
sketch9.addConstraint(Sketcher.Constraint("Coincident", 10, 2, 11, 1))
sketch9.addConstraint(Sketcher.Constraint("Coincident", 11, 2, 12, 1))
sketch9.addConstraint(Sketcher.Constraint("Coincident", 12, 2, 13, 1))
sketch9.addConstraint(Sketcher.Constraint("Coincident", 13, 2, 14, 1))
sketch9.addConstraint(Sketcher.Constraint("Coincident", 14, 2, 15, 1))
sketch9.addConstraint(Sketcher.Constraint("Coincident", 15, 2, 0, 1))
sketch9.addConstraint(Sketcher.Constraint("Horizontal", 0))
sketch9.addConstraint(Sketcher.Constraint("Vertical", 1))
sketch9.addConstraint(Sketcher.Constraint("Horizontal", 2))
sketch9.addConstraint(Sketcher.Constraint("Vertical", 3))
sketch9.addConstraint(Sketcher.Constraint("Horizontal", 4))
sketch9.addConstraint(Sketcher.Constraint("Vertical", 5))
sketch9.addConstraint(Sketcher.Constraint("Horizontal", 6))
sketch9.addConstraint(Sketcher.Constraint("Vertical", 7))
sketch9.addConstraint(Sketcher.Constraint("Horizontal", 8))
sketch9.addConstraint(Sketcher.Constraint("Vertical", 9))
sketch9.addConstraint(Sketcher.Constraint("Horizontal", 10))
sketch9.addConstraint(Sketcher.Constraint("Vertical", 11))
sketch9.addConstraint(Sketcher.Constraint("Horizontal", 12))
sketch9.addConstraint(Sketcher.Constraint("Vertical", 13))
sketch9.addConstraint(Sketcher.Constraint("Horizontal", 14))
sketch9.addConstraint(Sketcher.Constraint("Vertical", 15))
sketch9.addConstraint(Sketcher.Constraint("Horizontal", 4, 2, 7, 2))
sketch9.addConstraint(Sketcher.Constraint("Horizontal", 10, 2, 13, 2))
sketch9.addConstraint(Sketcher.Constraint("Vertical", 7, 2, 10, 2))
sketch9.addConstraint(Sketcher.Constraint("Vertical", 5, 2, 12, 2))
sketch9.addConstraint(Sketcher.Constraint("Vertical", 3, 2, 14, 2))
sketch9.addConstraint(Sketcher.Constraint("Equal", 7, 11))
sketch9.addConstraint(Sketcher.Constraint("Equal", 3, 15))
sketch9.addConstraint(Sketcher.Constraint("DistanceY", 1, 1, 1, 2, Q("0.5 in")))
sketch9.addConstraint(Sketcher.Constraint("DistanceY", 3, 2, 3, 1, Q("0.18 in")))
sketch9.addConstraint(Sketcher.Constraint("DistanceX", 0, 2, 0, 1, Q("0.125 in")))
sketch9.addConstraint(Sketcher.Constraint("DistanceX", 6, 1, 6, 2, Q("0.1093701 in")))
sketch9.addConstraint(Sketcher.Constraint("DistanceX", 8, 1, 8, 2, Q("0.1294 in")))
sketch9.addConstraint(Sketcher.Constraint("DistanceX", 4, 1, 4, 2, Q("6 mm")))
sketch9.addConstraint(Sketcher.Constraint("DistanceY", 5, 1, 5, 2, Q("2.191 mm")))
sketch9.addConstraint(Sketcher.Constraint("DistanceY", -1, 1, 0, 2, Q("1.6811 in")))
sketch9.addConstraint(Sketcher.Constraint("DistanceX", -1, 1, 0, 2, Q("20.441 mm")))
pocket8 = body.newObject("PartDesign::Pocket", "Pocket007")
pocket8.Profile = sketch9
pocket8.Type = "ThroughAll"
pocket8.Reversed = True
doc.recompute()

linearpattern6 = body.newObject("PartDesign::LinearPattern", "LinearPattern005")
linearpattern6.Originals = [pocket8]
linearpattern6.Direction = (doc.getObject("Z_Axis"), [""])
linearpattern6.Mode = "offset"
linearpattern6.Offset = Q("1 in")
linearpattern6.Occurrences = 2
body.Tip = linearpattern6

doc.recompute()
